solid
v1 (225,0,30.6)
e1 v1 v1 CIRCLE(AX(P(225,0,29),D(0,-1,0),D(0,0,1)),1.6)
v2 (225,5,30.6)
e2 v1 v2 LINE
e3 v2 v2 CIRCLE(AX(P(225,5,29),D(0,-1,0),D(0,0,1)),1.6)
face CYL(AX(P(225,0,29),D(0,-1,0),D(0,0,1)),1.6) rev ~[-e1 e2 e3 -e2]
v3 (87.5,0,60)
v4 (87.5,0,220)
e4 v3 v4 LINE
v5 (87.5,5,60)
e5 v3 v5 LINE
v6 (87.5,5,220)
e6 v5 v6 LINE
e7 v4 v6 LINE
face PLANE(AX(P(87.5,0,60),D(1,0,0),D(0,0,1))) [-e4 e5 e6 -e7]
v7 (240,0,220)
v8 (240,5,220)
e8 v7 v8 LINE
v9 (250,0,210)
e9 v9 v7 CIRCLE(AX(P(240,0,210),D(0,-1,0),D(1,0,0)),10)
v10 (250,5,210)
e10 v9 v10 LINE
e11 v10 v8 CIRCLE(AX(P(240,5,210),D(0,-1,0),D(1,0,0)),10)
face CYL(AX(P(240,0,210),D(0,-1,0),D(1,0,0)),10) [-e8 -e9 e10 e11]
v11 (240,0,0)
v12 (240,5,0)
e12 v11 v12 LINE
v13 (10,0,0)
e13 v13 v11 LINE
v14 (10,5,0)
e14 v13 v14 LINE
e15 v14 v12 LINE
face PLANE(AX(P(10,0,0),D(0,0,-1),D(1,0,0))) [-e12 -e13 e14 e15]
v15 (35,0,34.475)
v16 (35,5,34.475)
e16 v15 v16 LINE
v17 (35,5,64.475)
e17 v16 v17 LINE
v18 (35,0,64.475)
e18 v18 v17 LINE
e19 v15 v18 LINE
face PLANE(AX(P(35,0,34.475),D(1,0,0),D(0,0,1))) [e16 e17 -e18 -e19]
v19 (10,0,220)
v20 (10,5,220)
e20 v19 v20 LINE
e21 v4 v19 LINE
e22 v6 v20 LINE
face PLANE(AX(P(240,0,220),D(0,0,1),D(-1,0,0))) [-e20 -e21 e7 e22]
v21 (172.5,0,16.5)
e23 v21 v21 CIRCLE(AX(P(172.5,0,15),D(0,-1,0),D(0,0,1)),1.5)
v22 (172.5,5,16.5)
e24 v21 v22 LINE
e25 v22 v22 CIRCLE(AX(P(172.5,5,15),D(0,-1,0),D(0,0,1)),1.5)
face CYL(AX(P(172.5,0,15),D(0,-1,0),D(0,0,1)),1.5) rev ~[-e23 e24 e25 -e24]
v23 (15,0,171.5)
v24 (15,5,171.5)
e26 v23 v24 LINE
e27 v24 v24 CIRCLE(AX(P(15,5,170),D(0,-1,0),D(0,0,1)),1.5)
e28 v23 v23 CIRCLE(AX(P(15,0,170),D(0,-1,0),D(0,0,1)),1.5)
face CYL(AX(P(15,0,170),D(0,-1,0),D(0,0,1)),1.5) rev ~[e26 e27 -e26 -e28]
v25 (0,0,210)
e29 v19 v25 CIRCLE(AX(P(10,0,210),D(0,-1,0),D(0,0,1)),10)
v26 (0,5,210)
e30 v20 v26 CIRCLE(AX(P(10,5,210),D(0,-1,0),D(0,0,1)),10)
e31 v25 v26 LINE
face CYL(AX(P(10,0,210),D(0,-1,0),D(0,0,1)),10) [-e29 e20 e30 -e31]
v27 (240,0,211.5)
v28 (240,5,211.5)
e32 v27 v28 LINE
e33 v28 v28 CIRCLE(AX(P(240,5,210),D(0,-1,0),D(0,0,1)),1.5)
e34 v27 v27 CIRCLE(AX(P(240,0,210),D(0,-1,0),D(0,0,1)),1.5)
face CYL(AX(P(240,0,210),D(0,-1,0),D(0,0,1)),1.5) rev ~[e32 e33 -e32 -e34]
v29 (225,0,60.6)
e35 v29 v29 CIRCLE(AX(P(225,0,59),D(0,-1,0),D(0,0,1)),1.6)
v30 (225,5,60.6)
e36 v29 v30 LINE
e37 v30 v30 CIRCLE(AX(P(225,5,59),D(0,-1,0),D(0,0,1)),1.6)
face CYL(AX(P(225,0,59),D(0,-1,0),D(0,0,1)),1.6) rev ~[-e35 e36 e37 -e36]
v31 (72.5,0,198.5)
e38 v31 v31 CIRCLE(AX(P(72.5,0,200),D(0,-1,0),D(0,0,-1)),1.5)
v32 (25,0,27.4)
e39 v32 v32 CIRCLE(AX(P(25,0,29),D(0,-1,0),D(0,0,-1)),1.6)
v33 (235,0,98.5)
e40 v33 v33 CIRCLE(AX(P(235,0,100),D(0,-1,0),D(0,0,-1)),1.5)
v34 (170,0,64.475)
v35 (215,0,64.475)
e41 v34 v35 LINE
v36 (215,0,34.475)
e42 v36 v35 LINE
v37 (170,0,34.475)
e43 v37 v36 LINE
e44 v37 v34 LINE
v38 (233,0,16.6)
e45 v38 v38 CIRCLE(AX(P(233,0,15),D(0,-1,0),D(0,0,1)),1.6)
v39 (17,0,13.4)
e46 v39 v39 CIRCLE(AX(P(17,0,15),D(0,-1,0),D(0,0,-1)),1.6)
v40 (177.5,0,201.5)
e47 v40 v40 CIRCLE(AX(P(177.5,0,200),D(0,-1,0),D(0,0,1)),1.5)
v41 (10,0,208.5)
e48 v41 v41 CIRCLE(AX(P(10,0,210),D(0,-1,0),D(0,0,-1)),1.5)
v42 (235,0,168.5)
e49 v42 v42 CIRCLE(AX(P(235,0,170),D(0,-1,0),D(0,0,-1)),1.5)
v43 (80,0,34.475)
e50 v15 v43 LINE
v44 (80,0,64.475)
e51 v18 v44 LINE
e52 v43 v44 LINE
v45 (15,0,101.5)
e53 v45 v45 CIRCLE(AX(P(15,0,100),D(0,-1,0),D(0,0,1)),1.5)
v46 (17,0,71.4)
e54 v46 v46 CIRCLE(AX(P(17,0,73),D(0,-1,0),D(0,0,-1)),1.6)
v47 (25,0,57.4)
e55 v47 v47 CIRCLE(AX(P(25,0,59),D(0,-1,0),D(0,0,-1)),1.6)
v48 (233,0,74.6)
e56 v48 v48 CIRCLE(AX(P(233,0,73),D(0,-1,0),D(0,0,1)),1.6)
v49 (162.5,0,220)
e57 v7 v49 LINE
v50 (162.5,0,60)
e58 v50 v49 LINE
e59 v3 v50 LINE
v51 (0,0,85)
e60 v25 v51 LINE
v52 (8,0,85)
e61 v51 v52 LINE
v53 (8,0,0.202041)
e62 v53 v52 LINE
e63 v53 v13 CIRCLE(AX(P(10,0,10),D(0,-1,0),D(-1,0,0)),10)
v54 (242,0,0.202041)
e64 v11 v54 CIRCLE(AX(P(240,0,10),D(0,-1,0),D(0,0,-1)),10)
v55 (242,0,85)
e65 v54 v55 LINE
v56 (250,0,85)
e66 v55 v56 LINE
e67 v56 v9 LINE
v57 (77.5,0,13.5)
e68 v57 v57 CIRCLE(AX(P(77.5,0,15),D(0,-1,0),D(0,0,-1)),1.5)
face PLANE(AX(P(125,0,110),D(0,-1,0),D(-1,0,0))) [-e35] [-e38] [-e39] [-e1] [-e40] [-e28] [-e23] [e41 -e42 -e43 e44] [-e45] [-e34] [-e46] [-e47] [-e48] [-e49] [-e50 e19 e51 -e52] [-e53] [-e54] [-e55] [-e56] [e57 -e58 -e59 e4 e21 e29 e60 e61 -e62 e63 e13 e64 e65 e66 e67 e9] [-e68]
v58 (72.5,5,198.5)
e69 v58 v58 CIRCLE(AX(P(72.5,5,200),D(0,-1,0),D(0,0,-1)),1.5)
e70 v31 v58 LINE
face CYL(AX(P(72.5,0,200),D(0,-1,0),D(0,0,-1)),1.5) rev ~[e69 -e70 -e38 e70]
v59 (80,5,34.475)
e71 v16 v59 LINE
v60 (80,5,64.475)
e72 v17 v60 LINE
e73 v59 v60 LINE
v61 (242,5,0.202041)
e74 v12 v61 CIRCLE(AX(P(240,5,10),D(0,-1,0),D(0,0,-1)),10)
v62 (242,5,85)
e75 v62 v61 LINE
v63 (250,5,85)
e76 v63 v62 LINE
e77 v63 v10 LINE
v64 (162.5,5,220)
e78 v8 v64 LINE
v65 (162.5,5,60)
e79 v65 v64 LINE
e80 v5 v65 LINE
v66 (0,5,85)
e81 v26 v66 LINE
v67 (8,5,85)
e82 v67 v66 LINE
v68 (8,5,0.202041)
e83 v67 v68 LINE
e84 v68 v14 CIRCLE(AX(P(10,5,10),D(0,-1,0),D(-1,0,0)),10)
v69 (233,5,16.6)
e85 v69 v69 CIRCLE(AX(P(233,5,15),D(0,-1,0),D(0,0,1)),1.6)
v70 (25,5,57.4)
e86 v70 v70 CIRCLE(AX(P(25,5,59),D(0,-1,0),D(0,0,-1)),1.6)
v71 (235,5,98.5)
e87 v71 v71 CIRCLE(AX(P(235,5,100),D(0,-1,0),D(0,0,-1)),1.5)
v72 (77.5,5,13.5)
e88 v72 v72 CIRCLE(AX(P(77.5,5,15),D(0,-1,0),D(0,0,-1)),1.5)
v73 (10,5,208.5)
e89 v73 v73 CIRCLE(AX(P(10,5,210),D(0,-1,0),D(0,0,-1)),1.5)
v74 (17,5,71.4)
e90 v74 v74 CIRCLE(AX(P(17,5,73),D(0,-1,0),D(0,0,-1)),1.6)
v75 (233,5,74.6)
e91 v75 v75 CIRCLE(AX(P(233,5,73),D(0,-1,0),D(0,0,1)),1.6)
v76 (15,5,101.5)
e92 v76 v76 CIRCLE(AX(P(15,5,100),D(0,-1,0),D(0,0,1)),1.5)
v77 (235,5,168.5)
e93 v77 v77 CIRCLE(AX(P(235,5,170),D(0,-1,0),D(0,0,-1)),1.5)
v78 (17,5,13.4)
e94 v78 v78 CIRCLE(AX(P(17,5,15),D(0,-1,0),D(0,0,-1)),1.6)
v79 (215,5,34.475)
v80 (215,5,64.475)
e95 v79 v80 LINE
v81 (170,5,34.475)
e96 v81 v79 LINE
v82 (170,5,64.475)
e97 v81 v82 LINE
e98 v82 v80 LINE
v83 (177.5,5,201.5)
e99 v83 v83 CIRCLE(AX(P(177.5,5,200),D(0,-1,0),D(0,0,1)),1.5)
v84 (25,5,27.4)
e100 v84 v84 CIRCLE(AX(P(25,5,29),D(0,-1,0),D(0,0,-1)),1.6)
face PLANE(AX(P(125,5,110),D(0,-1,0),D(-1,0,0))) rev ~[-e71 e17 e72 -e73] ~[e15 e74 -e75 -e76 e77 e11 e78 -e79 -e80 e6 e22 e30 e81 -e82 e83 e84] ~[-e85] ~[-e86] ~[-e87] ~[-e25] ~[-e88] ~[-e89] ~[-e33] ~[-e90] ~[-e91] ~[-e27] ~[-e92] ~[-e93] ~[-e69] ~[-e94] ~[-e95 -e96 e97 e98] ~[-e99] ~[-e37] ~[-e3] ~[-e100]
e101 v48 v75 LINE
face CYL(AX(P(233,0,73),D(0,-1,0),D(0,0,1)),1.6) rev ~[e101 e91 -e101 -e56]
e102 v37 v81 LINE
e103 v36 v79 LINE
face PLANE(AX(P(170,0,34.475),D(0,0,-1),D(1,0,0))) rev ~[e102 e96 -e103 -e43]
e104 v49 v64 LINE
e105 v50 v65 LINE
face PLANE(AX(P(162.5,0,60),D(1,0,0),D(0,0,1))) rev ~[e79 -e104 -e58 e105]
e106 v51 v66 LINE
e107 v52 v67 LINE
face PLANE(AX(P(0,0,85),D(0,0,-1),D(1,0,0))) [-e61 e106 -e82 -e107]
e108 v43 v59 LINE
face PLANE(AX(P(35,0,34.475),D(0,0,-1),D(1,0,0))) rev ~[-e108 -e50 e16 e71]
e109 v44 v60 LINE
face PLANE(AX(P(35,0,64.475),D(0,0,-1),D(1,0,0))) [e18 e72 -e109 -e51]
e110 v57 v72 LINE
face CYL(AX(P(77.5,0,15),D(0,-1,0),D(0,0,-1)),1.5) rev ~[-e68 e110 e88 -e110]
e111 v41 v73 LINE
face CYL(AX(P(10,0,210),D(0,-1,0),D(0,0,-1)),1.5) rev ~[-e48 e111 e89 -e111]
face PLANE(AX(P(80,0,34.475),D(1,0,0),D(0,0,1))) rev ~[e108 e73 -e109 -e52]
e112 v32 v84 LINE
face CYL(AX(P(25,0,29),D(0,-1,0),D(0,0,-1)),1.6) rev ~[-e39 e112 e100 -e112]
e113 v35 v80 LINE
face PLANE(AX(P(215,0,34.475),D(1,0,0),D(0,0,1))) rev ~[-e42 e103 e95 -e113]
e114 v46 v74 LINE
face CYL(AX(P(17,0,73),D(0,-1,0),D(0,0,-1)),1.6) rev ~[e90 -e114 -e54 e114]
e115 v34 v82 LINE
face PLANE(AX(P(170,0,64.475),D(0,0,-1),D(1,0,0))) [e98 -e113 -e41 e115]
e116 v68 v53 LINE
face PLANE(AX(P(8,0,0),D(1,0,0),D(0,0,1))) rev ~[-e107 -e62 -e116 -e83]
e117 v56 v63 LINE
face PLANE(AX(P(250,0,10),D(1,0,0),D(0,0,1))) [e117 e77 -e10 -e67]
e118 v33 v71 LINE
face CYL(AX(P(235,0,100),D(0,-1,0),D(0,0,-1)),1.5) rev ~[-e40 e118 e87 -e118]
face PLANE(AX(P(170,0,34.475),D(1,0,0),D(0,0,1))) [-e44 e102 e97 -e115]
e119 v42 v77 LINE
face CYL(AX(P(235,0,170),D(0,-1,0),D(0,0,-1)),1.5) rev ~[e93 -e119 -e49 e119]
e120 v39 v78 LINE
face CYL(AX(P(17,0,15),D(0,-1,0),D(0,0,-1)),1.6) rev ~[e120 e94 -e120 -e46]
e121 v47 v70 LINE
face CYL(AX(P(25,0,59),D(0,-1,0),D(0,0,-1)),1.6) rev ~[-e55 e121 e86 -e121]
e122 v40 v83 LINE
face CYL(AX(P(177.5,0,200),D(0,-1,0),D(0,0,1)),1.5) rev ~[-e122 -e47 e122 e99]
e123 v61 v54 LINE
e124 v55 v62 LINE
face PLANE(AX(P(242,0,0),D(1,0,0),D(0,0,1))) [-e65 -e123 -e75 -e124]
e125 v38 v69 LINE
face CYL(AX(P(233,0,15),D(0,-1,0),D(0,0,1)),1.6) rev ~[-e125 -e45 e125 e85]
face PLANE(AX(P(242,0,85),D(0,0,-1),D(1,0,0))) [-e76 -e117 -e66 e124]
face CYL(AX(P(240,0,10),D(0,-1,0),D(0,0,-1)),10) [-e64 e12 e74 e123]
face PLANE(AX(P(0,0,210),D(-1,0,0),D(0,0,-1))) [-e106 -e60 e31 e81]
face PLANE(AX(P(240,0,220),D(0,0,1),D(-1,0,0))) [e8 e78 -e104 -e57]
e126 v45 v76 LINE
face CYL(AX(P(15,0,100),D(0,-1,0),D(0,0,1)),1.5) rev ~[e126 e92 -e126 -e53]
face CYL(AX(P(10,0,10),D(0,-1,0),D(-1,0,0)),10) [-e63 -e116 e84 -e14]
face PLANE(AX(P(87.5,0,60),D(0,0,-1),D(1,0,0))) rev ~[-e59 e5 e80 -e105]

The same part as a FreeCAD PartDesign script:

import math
import FreeCAD as App
import Part
import Sketcher
from FreeCAD import Vector
Q = App.Units.Quantity

doc = App.newDocument("Part")
body = doc.addObject("PartDesign::Body", "Body")

# Sketch on XZ plane
sketch1 = body.newObject("Sketcher::SketchObject", "Sketch")
sketch1.AttachmentSupport = (doc.getObject("XZ_Plane"), [""])
sketch1.MapMode = "FlatFace"
sketch1.addGeometry(Part.LineSegment(Vector(240, 0, 0), Vector(10, 0, 0)), False)
sketch1.addGeometry(Part.ArcOfCircle(Part.Circle(Vector(10, 10, 0), Vector(0, 0, 1), 10), math.radians(180), math.radians(270)), False)
sketch1.addGeometry(Part.LineSegment(Vector(0, 10, 0), Vector(0, 210, 0)), False)
sketch1.addGeometry(Part.ArcOfCircle(Part.Circle(Vector(10, 210, 0), Vector(0, 0, 1), 10), math.radians(90), math.radians(180)), False)
sketch1.addGeometry(Part.LineSegment(Vector(10, 220, 0), Vector(240, 220, 0)), False)
sketch1.addGeometry(Part.ArcOfCircle(Part.Circle(Vector(240, 210, 0), Vector(0, 0, 1), 10), math.radians(0), math.radians(90)), False)
sketch1.addGeometry(Part.LineSegment(Vector(250, 210, 0), Vector(250, 10, 0)), False)
sketch1.addGeometry(Part.ArcOfCircle(Part.Circle(Vector(240, 10, 0), Vector(0, 0, 1), 10), math.radians(-90), math.radians(0)), False)
sketch1.addConstraint(Sketcher.Constraint("Tangent", 0, 2, 1, 2))
sketch1.addConstraint(Sketcher.Constraint("Tangent", 1, 1, 2, 1))
sketch1.addConstraint(Sketcher.Constraint("Tangent", 2, 2, 3, 2))
sketch1.addConstraint(Sketcher.Constraint("Tangent", 3, 1, 4, 1))
sketch1.addConstraint(Sketcher.Constraint("Tangent", 4, 2, 5, 2))
sketch1.addConstraint(Sketcher.Constraint("Tangent", 5, 1, 6, 1))
sketch1.addConstraint(Sketcher.Constraint("Tangent", 6, 2, 7, 2))
sketch1.addConstraint(Sketcher.Constraint("Tangent", 7, 1, 0, 1))
sketch1.addConstraint(Sketcher.Constraint("Horizontal", 0))
sketch1.addConstraint(Sketcher.Constraint("Vertical", 2))
sketch1.addConstraint(Sketcher.Constraint("Horizontal", 4))
sketch1.addConstraint(Sketcher.Constraint("Vertical", 6))
sketch1.addConstraint(Sketcher.Constraint("Equal", 1, 3))
sketch1.addConstraint(Sketcher.Constraint("Equal", 3, 5))
sketch1.addConstraint(Sketcher.Constraint("Equal", 5, 7))
sketch1.addConstraint(Sketcher.Constraint("PointOnObject", 0, 2, -1))
sketch1.addConstraint(Sketcher.Constraint("PointOnObject", 1, 1, -2))
sketch1.addConstraint(Sketcher.Constraint("Radius", 1, Q("10 mm")))
sketch1.addConstraint(Sketcher.Constraint("DistanceX", 0, 2, 0, 1, Q("230 mm")))
sketch1.addConstraint(Sketcher.Constraint("DistanceY", 2, 1, 2, 2, Q("200 mm")))
pad1 = body.newObject("PartDesign::Pad", "Pad")
pad1.Profile = sketch1
pad1.Length = 5
pad1.Reversed = True

# Sketch on XZ plane
sketch2 = body.newObject("Sketcher::SketchObject", "Sketch001")
sketch2.AttachmentSupport = (doc.getObject("XZ_Plane"), [""])
sketch2.MapMode = "FlatFace"
sketch2.addGeometry(Part.LineSegment(Vector(170, 64, 0), Vector(170, 34, 0)), False)
sketch2.addGeometry(Part.LineSegment(Vector(170, 34, 0), Vector(215, 34, 0)), False)
sketch2.addGeometry(Part.LineSegment(Vector(215, 34, 0), Vector(215, 64, 0)), False)
sketch2.addGeometry(Part.LineSegment(Vector(215, 64, 0), Vector(170, 64, 0)), False)
sketch2.addGeometry(Part.LineSegment(Vector(35, 64, 0), Vector(35, 34, 0)), False)
sketch2.addGeometry(Part.LineSegment(Vector(35, 34, 0), Vector(80, 34, 0)), False)
sketch2.addGeometry(Part.LineSegment(Vector(80, 34, 0), Vector(80, 64, 0)), False)
sketch2.addGeometry(Part.LineSegment(Vector(80, 64, 0), Vector(35, 64, 0)), False)
sketch2.addConstraint(Sketcher.Constraint("Coincident", 0, 2, 1, 1))
sketch2.addConstraint(Sketcher.Constraint("Coincident", 1, 2, 2, 1))
sketch2.addConstraint(Sketcher.Constraint("Coincident", 2, 2, 3, 1))
sketch2.addConstraint(Sketcher.Constraint("Coincident", 3, 2, 0, 1))
sketch2.addConstraint(Sketcher.Constraint("Coincident", 4, 2, 5, 1))
sketch2.addConstraint(Sketcher.Constraint("Coincident", 5, 2, 6, 1))
sketch2.addConstraint(Sketcher.Constraint("Coincident", 6, 2, 7, 1))
sketch2.addConstraint(Sketcher.Constraint("Coincident", 7, 2, 4, 1))
sketch2.addConstraint(Sketcher.Constraint("Vertical", 0))
sketch2.addConstraint(Sketcher.Constraint("Horizontal", 1))
sketch2.addConstraint(Sketcher.Constraint("Vertical", 2))
sketch2.addConstraint(Sketcher.Constraint("Horizontal", 3))
sketch2.addConstraint(Sketcher.Constraint("Vertical", 4))
sketch2.addConstraint(Sketcher.Constraint("Horizontal", 5))
sketch2.addConstraint(Sketcher.Constraint("Vertical", 6))
sketch2.addConstraint(Sketcher.Constraint("Horizontal", 7))
sketch2.addConstraint(Sketcher.Constraint("Horizontal", 1, 2, 4, 2))
sketch2.addConstraint(Sketcher.Constraint("Horizontal", 3, 2, 6, 2))
sketch2.addConstraint(Sketcher.Constraint("Equal", 3, 5))
sketch2.addConstraint(Sketcher.Constraint("DistanceX", 1, 1, 1, 2, Q("45 mm")))
sketch2.addConstraint(Sketcher.Constraint("DistanceY", 0, 2, 0, 1, Q("30 mm")))
sketch2.addConstraint(Sketcher.Constraint("DistanceX", -1, 1, 0, 2, Q("170 mm")))
sketch2.addConstraint(Sketcher.Constraint("DistanceX", -1, 1, 4, 2, Q("35 mm")))
sketch2.addConstraint(Sketcher.Constraint("DistanceY", -1, 1, 0, 2, Q("34.475 mm")))
pocket1 = body.newObject("PartDesign::Pocket", "Pocket")
pocket1.Profile = sketch2
pocket1.Length = 5

# Sketch on XZ plane
sketch3 = body.newObject("Sketcher::SketchObject", "Sketch002")
sketch3.AttachmentSupport = (doc.getObject("XZ_Plane"), [""])
sketch3.MapMode = "FlatFace"
sketch3.addGeometry(Part.LineSegment(Vector(88, 220, 0), Vector(88, 60, 0)), False)
sketch3.addGeometry(Part.LineSegment(Vector(88, 60, 0), Vector(162, 60, 0)), False)
sketch3.addGeometry(Part.LineSegment(Vector(162, 60, 0), Vector(162, 220, 0)), False)
sketch3.addGeometry(Part.LineSegment(Vector(162, 220, 0), Vector(88, 220, 0)), False)
sketch3.addConstraint(Sketcher.Constraint("Coincident", 0, 2, 1, 1))
sketch3.addConstraint(Sketcher.Constraint("Coincident", 1, 2, 2, 1))
sketch3.addConstraint(Sketcher.Constraint("Coincident", 2, 2, 3, 1))
sketch3.addConstraint(Sketcher.Constraint("Coincident", 3, 2, 0, 1))
sketch3.addConstraint(Sketcher.Constraint("Vertical", 0))
sketch3.addConstraint(Sketcher.Constraint("Horizontal", 1))
sketch3.addConstraint(Sketcher.Constraint("Vertical", 2))
sketch3.addConstraint(Sketcher.Constraint("Horizontal", 3))
sketch3.addConstraint(Sketcher.Constraint("DistanceX", 1, 1, 1, 2, Q("75 mm")))
sketch3.addConstraint(Sketcher.Constraint("DistanceY", 0, 2, 0, 1, Q("160 mm")))
sketch3.addConstraint(Sketcher.Constraint("DistanceY", -1, 1, 0, 2, Q("60 mm")))
sketch3.addConstraint(Sketcher.Constraint("DistanceX", -1, 1, 0, 2, Q("87.5 mm")))
pocket2 = body.newObject("PartDesign::Pocket", "Pocket001")
pocket2.Profile = sketch3
pocket2.Length = 5

# Sketch on XZ plane
sketch4 = body.newObject("Sketcher::SketchObject", "Sketch003")
sketch4.AttachmentSupport = (doc.getObject("XZ_Plane"), [""])
sketch4.MapMode = "FlatFace"
sketch4.addGeometry(Part.Circle(Vector(72.5, 200, 0), Vector(0, 0, 1), 1.5), False)
sketch4.addConstraint(Sketcher.Constraint("Diameter", 0, Q("3 mm")))
sketch4.addConstraint(Sketcher.Constraint("DistanceY", -1, 1, 0, 3, Q("200 mm")))
sketch4.addConstraint(Sketcher.Constraint("DistanceX", -1, 1, 0, 3, Q("72.5 mm")))
pocket3 = body.newObject("PartDesign::Pocket", "Pocket002")
pocket3.Profile = sketch4
pocket3.Type = "UpToFirst"

# Sketch on XZ plane
sketch5 = body.newObject("Sketcher::SketchObject", "Sketch004")
sketch5.AttachmentSupport = (doc.getObject("XZ_Plane"), [""])
sketch5.MapMode = "FlatFace"
sketch5.addGeometry(Part.Circle(Vector(177.5, 200, 0), Vector(0, 0, 1), 1.5), False)
sketch5.addConstraint(Sketcher.Constraint("Diameter", 0, Q("3 mm")))
sketch5.addConstraint(Sketcher.Constraint("DistanceY", -1, 1, 0, 3, Q("200 mm")))
sketch5.addConstraint(Sketcher.Constraint("DistanceX", -1, 1, 0, 3, Q("177.5 mm")))
pocket4 = body.newObject("PartDesign::Pocket", "Pocket003")
pocket4.Profile = sketch5
pocket4.Type = "UpToFirst"

# Sketch on XZ plane
sketch6 = body.newObject("Sketcher::SketchObject", "Sketch005")
sketch6.AttachmentSupport = (doc.getObject("XZ_Plane"), [""])
sketch6.MapMode = "FlatFace"
sketch6.addGeometry(Part.Circle(Vector(17, 15, 0), Vector(0, 0, 1), 1.6), False)
sketch6.addConstraint(Sketcher.Constraint("Diameter", 0, Q("3.2 mm")))
sketch6.addConstraint(Sketcher.Constraint("DistanceX", -1, 1, 0, 3, Q("17 mm")))
sketch6.addConstraint(Sketcher.Constraint("DistanceY", -1, 1, 0, 3, Q("15 mm")))
pocket5 = body.newObject("PartDesign::Pocket", "Pocket004")
pocket5.Profile = sketch6
pocket5.Type = "UpToFirst"

# Sketch on XZ plane
sketch7 = body.newObject("Sketcher::SketchObject", "Sketch006")
sketch7.AttachmentSupport = (doc.getObject("XZ_Plane"), [""])
sketch7.MapMode = "FlatFace"
sketch7.addGeometry(Part.Circle(Vector(25, 29, 0), Vector(0, 0, 1), 1.6), False)
sketch7.addConstraint(Sketcher.Constraint("Diameter", 0, Q("3.2 mm")))
sketch7.addConstraint(Sketcher.Constraint("DistanceX", -1, 1, 0, 3, Q("25 mm")))
sketch7.addConstraint(Sketcher.Constraint("DistanceY", -1, 1, 0, 3, Q("29 mm")))
pocket6 = body.newObject("PartDesign::Pocket", "Pocket005")
pocket6.Profile = sketch7
pocket6.Type = "UpToFirst"

# Sketch on XZ plane
sketch8 = body.newObject("Sketcher::SketchObject", "Sketch007")
sketch8.AttachmentSupport = (doc.getObject("XZ_Plane"), [""])
sketch8.MapMode = "FlatFace"
sketch8.addGeometry(Part.Circle(Vector(25, 59, 0), Vector(0, 0, 1), 1.6), False)
sketch8.addConstraint(Sketcher.Constraint("Diameter", 0, Q("3.2 mm")))
sketch8.addConstraint(Sketcher.Constraint("DistanceX", -1, 1, 0, 3, Q("25 mm")))
sketch8.addConstraint(Sketcher.Constraint("DistanceY", -1, 1, 0, 3, Q("59 mm")))
pocket7 = body.newObject("PartDesign::Pocket", "Pocket006")
pocket7.Profile = sketch8
pocket7.Type = "UpToFirst"

# Sketch on XZ plane
sketch9 = body.newObject("Sketcher::SketchObject", "Sketch008")
sketch9.AttachmentSupport = (doc.getObject("XZ_Plane"), [""])
sketch9.MapMode = "FlatFace"
sketch9.addGeometry(Part.Circle(Vector(17, 73, 0), Vector(0, 0, 1), 1.6), False)
sketch9.addConstraint(Sketcher.Constraint("Diameter", 0, Q("3.2 mm")))
sketch9.addConstraint(Sketcher.Constraint("DistanceX", -1, 1, 0, 3, Q("17 mm")))
sketch9.addConstraint(Sketcher.Constraint("DistanceY", -1, 1, 0, 3, Q("73 mm")))
pocket8 = body.newObject("PartDesign::Pocket", "Pocket007")
pocket8.Profile = sketch9
pocket8.Type = "UpToFirst"

# Sketch on XZ plane
sketch10 = body.newObject("Sketcher::SketchObject", "Sketch009")
sketch10.AttachmentSupport = (doc.getObject("XZ_Plane"), [""])
sketch10.MapMode = "FlatFace"
sketch10.addGeometry(Part.Circle(Vector(233, 73, 0), Vector(0, 0, 1), 1.6), False)
sketch10.addConstraint(Sketcher.Constraint("Diameter", 0, Q("3.2 mm")))
sketch10.addConstraint(Sketcher.Constraint("DistanceX", -1, 1, 0, 3, Q("233 mm")))
sketch10.addConstraint(Sketcher.Constraint("DistanceY", -1, 1, 0, 3, Q("73 mm")))
pocket9 = body.newObject("PartDesign::Pocket", "Pocket008")
pocket9.Profile = sketch10
pocket9.Type = "UpToFirst"

# Sketch on XZ plane
sketch11 = body.newObject("Sketcher::SketchObject", "Sketch010")
sketch11.AttachmentSupport = (doc.getObject("XZ_Plane"), [""])
sketch11.MapMode = "FlatFace"
sketch11.addGeometry(Part.Circle(Vector(225, 59, 0), Vector(0, 0, 1), 1.6), False)
sketch11.addConstraint(Sketcher.Constraint("Diameter", 0, Q("3.2 mm")))
sketch11.addConstraint(Sketcher.Constraint("DistanceX", -1, 1, 0, 3, Q("225 mm")))
sketch11.addConstraint(Sketcher.Constraint("DistanceY", -1, 1, 0, 3, Q("59 mm")))
pocket10 = body.newObject("PartDesign::Pocket", "Pocket009")
pocket10.Profile = sketch11
pocket10.Type = "UpToFirst"

# Sketch on XZ plane
sketch12 = body.newObject("Sketcher::SketchObject", "Sketch011")
sketch12.AttachmentSupport = (doc.getObject("XZ_Plane"), [""])
sketch12.MapMode = "FlatFace"
sketch12.addGeometry(Part.Circle(Vector(225, 29, 0), Vector(0, 0, 1), 1.6), False)
sketch12.addConstraint(Sketcher.Constraint("Diameter", 0, Q("3.2 mm")))
sketch12.addConstraint(Sketcher.Constraint("DistanceX", -1, 1, 0, 3, Q("225 mm")))
sketch12.addConstraint(Sketcher.Constraint("DistanceY", -1, 1, 0, 3, Q("29 mm")))
pocket11 = body.newObject("PartDesign::Pocket", "Pocket010")
pocket11.Profile = sketch12
pocket11.Type = "UpToFirst"

# Sketch on XZ plane
sketch13 = body.newObject("Sketcher::SketchObject", "Sketch012")
sketch13.AttachmentSupport = (doc.getObject("XZ_Plane"), [""])
sketch13.MapMode = "FlatFace"
sketch13.addGeometry(Part.Circle(Vector(233, 15, 0), Vector(0, 0, 1), 1.6), False)
sketch13.addConstraint(Sketcher.Constraint("Diameter", 0, Q("3.2 mm")))
sketch13.addConstraint(Sketcher.Constraint("DistanceX", -1, 1, 0, 3, Q("233 mm")))
sketch13.addConstraint(Sketcher.Constraint("DistanceY", -1, 1, 0, 3, Q("15 mm")))
pocket12 = body.newObject("PartDesign::Pocket", "Pocket011")
pocket12.Profile = sketch13
pocket12.Type = "UpToFirst"

# Sketch on XZ plane
sketch14 = body.newObject("Sketcher::SketchObject", "Sketch013")
sketch14.AttachmentSupport = (doc.getObject("XZ_Plane"), [""])
sketch14.MapMode = "FlatFace"
sketch14.addGeometry(Part.Circle(Vector(235, 170, 0), Vector(0, 0, 1), 1.5), False)
sketch14.addConstraint(Sketcher.Constraint("Diameter", 0, Q("3 mm")))
sketch14.addConstraint(Sketcher.Constraint("DistanceX", -1, 1, 0, 3, Q("235 mm")))
sketch14.addConstraint(Sketcher.Constraint("DistanceY", -1, 1, 0, 3, Q("170 mm")))
pocket13 = body.newObject("PartDesign::Pocket", "Pocket012")
pocket13.Profile = sketch14
pocket13.Type = "UpToFirst"

# Sketch on XZ plane
sketch15 = body.newObject("Sketcher::SketchObject", "Sketch014")
sketch15.AttachmentSupport = (doc.getObject("XZ_Plane"), [""])
sketch15.MapMode = "FlatFace"
sketch15.addGeometry(Part.Circle(Vector(235, 100, 0), Vector(0, 0, 1), 1.5), False)
sketch15.addConstraint(Sketcher.Constraint("Diameter", 0, Q("3 mm")))
sketch15.addConstraint(Sketcher.Constraint("DistanceX", -1, 1, 0, 3, Q("235 mm")))
sketch15.addConstraint(Sketcher.Constraint("DistanceY", -1, 1, 0, 3, Q("100 mm")))
pocket14 = body.newObject("PartDesign::Pocket", "Pocket013")
pocket14.Profile = sketch15
pocket14.Type = "UpToFirst"

# Sketch on XZ plane
sketch16 = body.newObject("Sketcher::SketchObject", "Sketch015")
sketch16.AttachmentSupport = (doc.getObject("XZ_Plane"), [""])
sketch16.MapMode = "FlatFace"
sketch16.addGeometry(Part.Circle(Vector(15, 100, 0), Vector(0, 0, 1), 1.5), False)
sketch16.addConstraint(Sketcher.Constraint("Diameter", 0, Q("3 mm")))
sketch16.addConstraint(Sketcher.Constraint("DistanceX", -1, 1, 0, 3, Q("15 mm")))
sketch16.addConstraint(Sketcher.Constraint("DistanceY", -1, 1, 0, 3, Q("100 mm")))
pocket15 = body.newObject("PartDesign::Pocket", "Pocket014")
pocket15.Profile = sketch16
pocket15.Type = "UpToFirst"

# Sketch on XZ plane
sketch17 = body.newObject("Sketcher::SketchObject", "Sketch016")
sketch17.AttachmentSupport = (doc.getObject("XZ_Plane"), [""])
sketch17.MapMode = "FlatFace"
sketch17.addGeometry(Part.Circle(Vector(15, 170, 0), Vector(0, 0, 1), 1.5), False)
sketch17.addConstraint(Sketcher.Constraint("Diameter", 0, Q("3 mm")))
sketch17.addConstraint(Sketcher.Constraint("DistanceX", -1, 1, 0, 3, Q("15 mm")))
sketch17.addConstraint(Sketcher.Constraint("DistanceY", -1, 1, 0, 3, Q("170 mm")))
pocket16 = body.newObject("PartDesign::Pocket", "Pocket015")
pocket16.Profile = sketch17
pocket16.Type = "UpToFirst"

# Sketch on XZ plane
sketch18 = body.newObject("Sketcher::SketchObject", "Sketch017")
sketch18.AttachmentSupport = (doc.getObject("XZ_Plane"), [""])
sketch18.MapMode = "FlatFace"
sketch18.addGeometry(Part.Circle(Vector(77.5, 15, 0), Vector(0, 0, 1), 1.5), False)
sketch18.addConstraint(Sketcher.Constraint("Diameter", 0, Q("3 mm")))
sketch18.addConstraint(Sketcher.Constraint("DistanceY", -1, 1, 0, 3, Q("15 mm")))
sketch18.addConstraint(Sketcher.Constraint("DistanceX", -1, 1, 0, 3, Q("77.5 mm")))
pocket17 = body.newObject("PartDesign::Pocket", "Pocket016")
pocket17.Profile = sketch18
pocket17.Type = "UpToFirst"

# Sketch on XZ plane
sketch19 = body.newObject("Sketcher::SketchObject", "Sketch018")
sketch19.AttachmentSupport = (doc.getObject("XZ_Plane"), [""])
sketch19.MapMode = "FlatFace"
sketch19.addGeometry(Part.Circle(Vector(10, 210, 0), Vector(0, 0, 1), 1.5), False)
sketch19.addConstraint(Sketcher.Constraint("Diameter", 0, Q("3 mm")))
sketch19.addConstraint(Sketcher.Constraint("DistanceX", -1, 1, 0, 3, Q("10 mm")))
sketch19.addConstraint(Sketcher.Constraint("DistanceY", -1, 1, 0, 3, Q("210 mm")))
pocket18 = body.newObject("PartDesign::Pocket", "Pocket017")
pocket18.Profile = sketch19
pocket18.Type = "UpToFirst"

# Sketch on XZ plane
sketch20 = body.newObject("Sketcher::SketchObject", "Sketch019")
sketch20.AttachmentSupport = (doc.getObject("XZ_Plane"), [""])
sketch20.MapMode = "FlatFace"
sketch20.addGeometry(Part.Circle(Vector(240, 210, 0), Vector(0, 0, 1), 1.5), False)
sketch20.addConstraint(Sketcher.Constraint("Diameter", 0, Q("3 mm")))
sketch20.addConstraint(Sketcher.Constraint("DistanceX", -1, 1, 0, 3, Q("240 mm")))
sketch20.addConstraint(Sketcher.Constraint("DistanceY", -1, 1, 0, 3, Q("210 mm")))
pocket19 = body.newObject("PartDesign::Pocket", "Pocket018")
pocket19.Profile = sketch20
pocket19.Type = "UpToFirst"

# Sketch on XZ plane
sketch21 = body.newObject("Sketcher::SketchObject", "Sketch020")
sketch21.AttachmentSupport = (doc.getObject("XZ_Plane"), [""])
sketch21.MapMode = "FlatFace"
sketch21.addGeometry(Part.Circle(Vector(172.5, 15, 0), Vector(0, 0, 1), 1.5), False)
sketch21.addConstraint(Sketcher.Constraint("Diameter", 0, Q("3 mm")))
sketch21.addConstraint(Sketcher.Constraint("DistanceY", -1, 1, 0, 3, Q("15 mm")))
sketch21.addConstraint(Sketcher.Constraint("DistanceX", -1, 1, 0, 3, Q("172.5 mm")))
pocket20 = body.newObject("PartDesign::Pocket", "Pocket019")
pocket20.Profile = sketch21
pocket20.Type = "UpToFirst"

# Sketch on XZ plane
sketch22 = body.newObject("Sketcher::SketchObject", "Sketch021")
sketch22.AttachmentSupport = (doc.getObject("XZ_Plane"), [""])
sketch22.MapMode = "FlatFace"
sketch22.addGeometry(Part.LineSegment(Vector(0, 85, 0), Vector(0, 0, 0)), False)
sketch22.addGeometry(Part.LineSegment(Vector(0, 0, 0), Vector(8, 0, 0)), False)
sketch22.addGeometry(Part.LineSegment(Vector(8, 0, 0), Vector(8, 85, 0)), False)
sketch22.addGeometry(Part.LineSegment(Vector(8, 85, 0), Vector(0, 85, 0)), False)
sketch22.addConstraint(Sketcher.Constraint("Coincident", 0, 2, 1, 1))
sketch22.addConstraint(Sketcher.Constraint("Coincident", 1, 2, 2, 1))
sketch22.addConstraint(Sketcher.Constraint("Coincident", 2, 2, 3, 1))
sketch22.addConstraint(Sketcher.Constraint("Coincident", 3, 2, 0, 1))
sketch22.addConstraint(Sketcher.Constraint("Vertical", 0))
sketch22.addConstraint(Sketcher.Constraint("Horizontal", 1))
sketch22.addConstraint(Sketcher.Constraint("Vertical", 2))
sketch22.addConstraint(Sketcher.Constraint("Horizontal", 3))
sketch22.addConstraint(Sketcher.Constraint("Coincident", 0, 2, -1, 1))
sketch22.addConstraint(Sketcher.Constraint("DistanceX", 1, 1, 1, 2, Q("8 mm")))
sketch22.addConstraint(Sketcher.Constraint("DistanceY", 0, 2, 0, 1, Q("85 mm")))
pocket21 = body.newObject("PartDesign::Pocket", "Pocket020")
pocket21.Profile = sketch22
pocket21.Type = "UpToFirst"

# Sketch on XZ plane
sketch23 = body.newObject("Sketcher::SketchObject", "Sketch022")
sketch23.AttachmentSupport = (doc.getObject("XZ_Plane"), [""])
sketch23.MapMode = "FlatFace"
sketch23.addGeometry(Part.LineSegment(Vector(242, 85, 0), Vector(242, 0, 0)), False)
sketch23.addGeometry(Part.LineSegment(Vector(242, 0, 0), Vector(250, 0, 0)), False)
sketch23.addGeometry(Part.LineSegment(Vector(250, 0, 0), Vector(250, 85, 0)), False)
sketch23.addGeometry(Part.LineSegment(Vector(250, 85, 0), Vector(242, 85, 0)), False)
sketch23.addConstraint(Sketcher.Constraint("Coincident", 0, 2, 1, 1))
sketch23.addConstraint(Sketcher.Constraint("Coincident", 1, 2, 2, 1))
sketch23.addConstraint(Sketcher.Constraint("Coincident", 2, 2, 3, 1))
sketch23.addConstraint(Sketcher.Constraint("Coincident", 3, 2, 0, 1))
sketch23.addConstraint(Sketcher.Constraint("Vertical", 0))
sketch23.addConstraint(Sketcher.Constraint("Horizontal", 1))
sketch23.addConstraint(Sketcher.Constraint("Vertical", 2))
sketch23.addConstraint(Sketcher.Constraint("Horizontal", 3))
sketch23.addConstraint(Sketcher.Constraint("PointOnObject", 0, 2, -1))
sketch23.addConstraint(Sketcher.Constraint("DistanceX", 1, 1, 1, 2, Q("8 mm")))
sketch23.addConstraint(Sketcher.Constraint("DistanceY", 0, 2, 0, 1, Q("85 mm")))
sketch23.addConstraint(Sketcher.Constraint("DistanceX", -1, 1, 0, 2, Q("242 mm")))
pocket22 = body.newObject("PartDesign::Pocket", "Pocket021")
pocket22.Profile = sketch23
pocket22.Type = "UpToFirst"

doc.recompute()
